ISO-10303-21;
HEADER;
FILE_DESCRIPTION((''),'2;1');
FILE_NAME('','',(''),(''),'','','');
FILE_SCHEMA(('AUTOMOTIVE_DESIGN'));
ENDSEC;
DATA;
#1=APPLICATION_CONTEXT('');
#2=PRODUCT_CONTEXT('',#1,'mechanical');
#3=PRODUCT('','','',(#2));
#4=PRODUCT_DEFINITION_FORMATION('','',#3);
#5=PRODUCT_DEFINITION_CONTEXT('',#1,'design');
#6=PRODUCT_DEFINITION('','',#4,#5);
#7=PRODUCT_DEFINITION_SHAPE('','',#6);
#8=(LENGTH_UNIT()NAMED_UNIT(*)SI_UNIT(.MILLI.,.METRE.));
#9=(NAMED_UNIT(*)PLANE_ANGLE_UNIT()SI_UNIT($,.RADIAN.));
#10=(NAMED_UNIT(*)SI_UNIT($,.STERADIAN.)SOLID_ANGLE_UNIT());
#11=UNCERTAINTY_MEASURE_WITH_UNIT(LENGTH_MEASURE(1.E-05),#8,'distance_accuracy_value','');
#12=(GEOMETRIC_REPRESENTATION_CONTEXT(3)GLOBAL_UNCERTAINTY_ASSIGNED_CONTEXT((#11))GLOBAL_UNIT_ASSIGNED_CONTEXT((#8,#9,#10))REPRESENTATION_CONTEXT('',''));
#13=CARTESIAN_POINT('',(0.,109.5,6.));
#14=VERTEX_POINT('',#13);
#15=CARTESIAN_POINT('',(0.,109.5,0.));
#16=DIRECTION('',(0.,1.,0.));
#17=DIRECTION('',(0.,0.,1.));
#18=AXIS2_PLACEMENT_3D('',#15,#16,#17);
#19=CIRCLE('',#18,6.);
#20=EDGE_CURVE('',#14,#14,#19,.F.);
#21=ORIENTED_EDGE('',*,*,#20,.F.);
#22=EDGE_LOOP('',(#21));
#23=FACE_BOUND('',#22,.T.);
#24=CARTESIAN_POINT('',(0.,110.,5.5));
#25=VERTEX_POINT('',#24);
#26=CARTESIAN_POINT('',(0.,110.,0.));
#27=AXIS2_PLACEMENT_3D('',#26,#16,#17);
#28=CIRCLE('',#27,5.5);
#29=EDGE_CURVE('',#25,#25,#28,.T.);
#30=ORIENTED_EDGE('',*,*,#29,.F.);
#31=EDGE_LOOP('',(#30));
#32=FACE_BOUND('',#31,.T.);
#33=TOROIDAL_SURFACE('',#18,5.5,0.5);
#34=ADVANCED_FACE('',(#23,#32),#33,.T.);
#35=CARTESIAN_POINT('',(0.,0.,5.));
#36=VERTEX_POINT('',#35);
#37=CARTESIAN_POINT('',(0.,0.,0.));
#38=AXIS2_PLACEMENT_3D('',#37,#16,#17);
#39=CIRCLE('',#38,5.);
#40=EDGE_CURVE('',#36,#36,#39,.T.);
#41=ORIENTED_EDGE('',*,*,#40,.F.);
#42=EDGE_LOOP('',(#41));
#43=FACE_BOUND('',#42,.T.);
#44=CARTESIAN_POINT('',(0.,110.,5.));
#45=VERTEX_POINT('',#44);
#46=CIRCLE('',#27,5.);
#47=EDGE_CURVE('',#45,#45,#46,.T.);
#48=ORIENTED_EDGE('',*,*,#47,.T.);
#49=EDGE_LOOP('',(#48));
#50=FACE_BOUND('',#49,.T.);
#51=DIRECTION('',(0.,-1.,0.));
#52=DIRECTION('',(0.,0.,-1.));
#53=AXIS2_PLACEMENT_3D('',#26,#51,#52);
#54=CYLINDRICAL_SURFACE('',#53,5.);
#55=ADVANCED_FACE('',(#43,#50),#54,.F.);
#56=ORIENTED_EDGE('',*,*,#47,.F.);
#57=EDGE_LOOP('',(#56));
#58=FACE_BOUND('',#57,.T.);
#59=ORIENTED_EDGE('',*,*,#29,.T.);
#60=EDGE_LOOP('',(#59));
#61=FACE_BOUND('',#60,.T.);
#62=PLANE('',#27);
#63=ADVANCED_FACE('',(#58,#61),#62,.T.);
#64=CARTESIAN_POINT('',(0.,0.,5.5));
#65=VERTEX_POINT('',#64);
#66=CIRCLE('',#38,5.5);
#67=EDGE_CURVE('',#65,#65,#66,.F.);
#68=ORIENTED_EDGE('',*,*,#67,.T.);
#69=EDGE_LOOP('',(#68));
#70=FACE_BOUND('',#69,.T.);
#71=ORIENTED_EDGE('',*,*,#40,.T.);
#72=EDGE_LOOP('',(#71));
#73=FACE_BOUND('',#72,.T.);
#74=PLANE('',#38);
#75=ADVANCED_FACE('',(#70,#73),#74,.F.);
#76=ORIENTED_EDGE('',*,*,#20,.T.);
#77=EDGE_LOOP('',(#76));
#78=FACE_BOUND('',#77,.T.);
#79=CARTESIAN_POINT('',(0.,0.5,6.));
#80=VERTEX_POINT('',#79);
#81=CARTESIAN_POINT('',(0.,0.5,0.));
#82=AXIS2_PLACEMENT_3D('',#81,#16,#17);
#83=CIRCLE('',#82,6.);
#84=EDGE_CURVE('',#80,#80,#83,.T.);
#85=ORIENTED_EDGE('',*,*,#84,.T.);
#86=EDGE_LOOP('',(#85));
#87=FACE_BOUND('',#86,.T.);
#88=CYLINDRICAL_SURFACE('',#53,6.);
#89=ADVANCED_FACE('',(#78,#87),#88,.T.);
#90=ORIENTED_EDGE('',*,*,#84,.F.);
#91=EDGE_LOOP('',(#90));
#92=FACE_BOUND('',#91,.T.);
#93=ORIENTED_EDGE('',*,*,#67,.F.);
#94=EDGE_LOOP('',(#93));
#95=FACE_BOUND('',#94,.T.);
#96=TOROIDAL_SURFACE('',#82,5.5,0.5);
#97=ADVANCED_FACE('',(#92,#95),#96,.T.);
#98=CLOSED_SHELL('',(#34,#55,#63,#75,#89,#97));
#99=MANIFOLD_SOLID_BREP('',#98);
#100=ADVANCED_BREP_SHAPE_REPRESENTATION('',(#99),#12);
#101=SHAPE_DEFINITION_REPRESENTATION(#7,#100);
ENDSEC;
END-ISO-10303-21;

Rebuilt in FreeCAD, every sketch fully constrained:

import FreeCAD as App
import Part
import Sketcher


def edges_at(feature, points):
    """Names of the edges that pass closest to the given points."""
    edges = feature.Shape.Edges
    near = lambda p: min(range(len(edges)), key=lambda i: edges[i].distToShape(Part.Vertex(*p))[0])
    return sorted({f"Edge{near(p) + 1}" for p in points})

doc = App.newDocument("Part")
params = doc.addObject("Spreadsheet::Sheet", "Params")
for row, (alias, value) in enumerate([
    ("sketch1_diameter", "12 mm"),
    ("sketch1_diameter2", "10 mm"),
    ("pad1_length", "110 mm"),
    ("fillet_radius", "0.5 mm"),
], start=1):
    params.set(f"A{row}", alias)
    params.set(f"B{row}", "=" + value)
    params.setAlias(f"B{row}", alias)

body = doc.addObject("PartDesign::Body", "Body")

sketch1 = body.newObject("Sketcher::SketchObject", "Sketch")
sketch1.AttachmentSupport = (doc.getObject("XZ_Plane"), [""])
sketch1.MapMode = "FlatFace"
sketch1.addGeometry([
    Part.Circle(App.Vector(0, 0, 0), App.Vector(0, 0, 1), 6),
    Part.Circle(App.Vector(0, 0, 0), App.Vector(0, 0, 1), 5),
], False)
sketch1.addConstraint([
    Sketcher.Constraint("Coincident", 0, 3, -1, 1),
    Sketcher.Constraint("Coincident", 1, 3, -1, 1),
    Sketcher.Constraint("Diameter", 0, 12.0),
    Sketcher.Constraint("Diameter", 1, 10.0),
])
sketch1.setExpression("Constraints[2]", "Params.sketch1_diameter")
sketch1.setExpression("Constraints[3]", "Params.sketch1_diameter2")
pad1 = body.newObject("PartDesign::Pad", "Pad")
pad1.Profile = sketch1
pad1.setExpression("Length", "Params.pad1_length")
pad1.Reversed = True
doc.recompute()

fillet = body.newObject("PartDesign::Fillet", "Fillet")
fillet.Base = (pad1, edges_at(pad1, [(-6, 0, 0), (-6, 110, 0)]))
fillet.setExpression("Radius", "Params.fillet_radius")

doc.recompute()
